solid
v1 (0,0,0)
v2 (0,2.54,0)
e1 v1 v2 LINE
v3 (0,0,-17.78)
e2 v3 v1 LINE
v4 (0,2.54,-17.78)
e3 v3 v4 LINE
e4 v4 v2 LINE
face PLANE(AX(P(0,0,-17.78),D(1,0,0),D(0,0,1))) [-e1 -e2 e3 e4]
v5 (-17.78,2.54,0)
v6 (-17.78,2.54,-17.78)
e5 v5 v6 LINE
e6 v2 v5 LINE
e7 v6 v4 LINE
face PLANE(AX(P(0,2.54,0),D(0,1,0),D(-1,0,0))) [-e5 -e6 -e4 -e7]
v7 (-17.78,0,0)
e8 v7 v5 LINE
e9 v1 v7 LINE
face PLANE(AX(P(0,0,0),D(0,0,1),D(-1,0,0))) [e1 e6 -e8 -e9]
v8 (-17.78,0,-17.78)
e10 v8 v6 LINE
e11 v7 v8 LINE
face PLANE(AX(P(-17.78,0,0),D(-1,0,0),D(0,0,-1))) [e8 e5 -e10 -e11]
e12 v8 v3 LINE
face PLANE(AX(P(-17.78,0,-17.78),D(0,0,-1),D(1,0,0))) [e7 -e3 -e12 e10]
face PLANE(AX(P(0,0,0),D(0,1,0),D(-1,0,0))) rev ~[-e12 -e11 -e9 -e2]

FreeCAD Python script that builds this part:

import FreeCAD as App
import Part
import Sketcher
from FreeCAD import Vector
Q = App.Units.Quantity

doc = App.newDocument("Part")
body = doc.addObject("PartDesign::Body", "Body")

# Sketch on XZ plane
sketch1 = body.newObject("Sketcher::SketchObject", "Sketch")
sketch1.AttachmentSupport = (doc.getObject("XZ_Plane"), [""])
sketch1.MapMode = "FlatFace"
sketch1.addGeometry(Part.LineSegment(Vector(-18, 0, 0), Vector(0, 0, 0)), False)
sketch1.addGeometry(Part.LineSegment(Vector(0, 0, 0), Vector(0, -18, 0)), False)
sketch1.addGeometry(Part.LineSegment(Vector(0, -18, 0), Vector(-18, -18, 0)), False)
sketch1.addGeometry(Part.LineSegment(Vector(-18, -18, 0), Vector(-18, 0, 0)), False)
sketch1.addConstraint(Sketcher.Constraint("Coincident", 0, 2, 1, 1))
sketch1.addConstraint(Sketcher.Constraint("Coincident", 1, 2, 2, 1))
sketch1.addConstraint(Sketcher.Constraint("Coincident", 2, 2, 3, 1))
sketch1.addConstraint(Sketcher.Constraint("Coincident", 3, 2, 0, 1))
sketch1.addConstraint(Sketcher.Constraint("Horizontal", 0))
sketch1.addConstraint(Sketcher.Constraint("Vertical", 1))
sketch1.addConstraint(Sketcher.Constraint("Horizontal", 2))
sketch1.addConstraint(Sketcher.Constraint("Vertical", 3))
sketch1.addConstraint(Sketcher.Constraint("Coincident", 0, 2, -1, 1))
sketch1.addConstraint(Sketcher.Constraint("Equal", 2, 1))
sketch1.addConstraint(Sketcher.Constraint("DistanceX", 0, 1, 0, 2, Q("0.7 in")))
pad1 = body.newObject("PartDesign::Pad", "Pad")
pad1.Profile = sketch1
pad1.Length = Q("0.1 in")
pad1.Reversed = True

doc.recompute()
